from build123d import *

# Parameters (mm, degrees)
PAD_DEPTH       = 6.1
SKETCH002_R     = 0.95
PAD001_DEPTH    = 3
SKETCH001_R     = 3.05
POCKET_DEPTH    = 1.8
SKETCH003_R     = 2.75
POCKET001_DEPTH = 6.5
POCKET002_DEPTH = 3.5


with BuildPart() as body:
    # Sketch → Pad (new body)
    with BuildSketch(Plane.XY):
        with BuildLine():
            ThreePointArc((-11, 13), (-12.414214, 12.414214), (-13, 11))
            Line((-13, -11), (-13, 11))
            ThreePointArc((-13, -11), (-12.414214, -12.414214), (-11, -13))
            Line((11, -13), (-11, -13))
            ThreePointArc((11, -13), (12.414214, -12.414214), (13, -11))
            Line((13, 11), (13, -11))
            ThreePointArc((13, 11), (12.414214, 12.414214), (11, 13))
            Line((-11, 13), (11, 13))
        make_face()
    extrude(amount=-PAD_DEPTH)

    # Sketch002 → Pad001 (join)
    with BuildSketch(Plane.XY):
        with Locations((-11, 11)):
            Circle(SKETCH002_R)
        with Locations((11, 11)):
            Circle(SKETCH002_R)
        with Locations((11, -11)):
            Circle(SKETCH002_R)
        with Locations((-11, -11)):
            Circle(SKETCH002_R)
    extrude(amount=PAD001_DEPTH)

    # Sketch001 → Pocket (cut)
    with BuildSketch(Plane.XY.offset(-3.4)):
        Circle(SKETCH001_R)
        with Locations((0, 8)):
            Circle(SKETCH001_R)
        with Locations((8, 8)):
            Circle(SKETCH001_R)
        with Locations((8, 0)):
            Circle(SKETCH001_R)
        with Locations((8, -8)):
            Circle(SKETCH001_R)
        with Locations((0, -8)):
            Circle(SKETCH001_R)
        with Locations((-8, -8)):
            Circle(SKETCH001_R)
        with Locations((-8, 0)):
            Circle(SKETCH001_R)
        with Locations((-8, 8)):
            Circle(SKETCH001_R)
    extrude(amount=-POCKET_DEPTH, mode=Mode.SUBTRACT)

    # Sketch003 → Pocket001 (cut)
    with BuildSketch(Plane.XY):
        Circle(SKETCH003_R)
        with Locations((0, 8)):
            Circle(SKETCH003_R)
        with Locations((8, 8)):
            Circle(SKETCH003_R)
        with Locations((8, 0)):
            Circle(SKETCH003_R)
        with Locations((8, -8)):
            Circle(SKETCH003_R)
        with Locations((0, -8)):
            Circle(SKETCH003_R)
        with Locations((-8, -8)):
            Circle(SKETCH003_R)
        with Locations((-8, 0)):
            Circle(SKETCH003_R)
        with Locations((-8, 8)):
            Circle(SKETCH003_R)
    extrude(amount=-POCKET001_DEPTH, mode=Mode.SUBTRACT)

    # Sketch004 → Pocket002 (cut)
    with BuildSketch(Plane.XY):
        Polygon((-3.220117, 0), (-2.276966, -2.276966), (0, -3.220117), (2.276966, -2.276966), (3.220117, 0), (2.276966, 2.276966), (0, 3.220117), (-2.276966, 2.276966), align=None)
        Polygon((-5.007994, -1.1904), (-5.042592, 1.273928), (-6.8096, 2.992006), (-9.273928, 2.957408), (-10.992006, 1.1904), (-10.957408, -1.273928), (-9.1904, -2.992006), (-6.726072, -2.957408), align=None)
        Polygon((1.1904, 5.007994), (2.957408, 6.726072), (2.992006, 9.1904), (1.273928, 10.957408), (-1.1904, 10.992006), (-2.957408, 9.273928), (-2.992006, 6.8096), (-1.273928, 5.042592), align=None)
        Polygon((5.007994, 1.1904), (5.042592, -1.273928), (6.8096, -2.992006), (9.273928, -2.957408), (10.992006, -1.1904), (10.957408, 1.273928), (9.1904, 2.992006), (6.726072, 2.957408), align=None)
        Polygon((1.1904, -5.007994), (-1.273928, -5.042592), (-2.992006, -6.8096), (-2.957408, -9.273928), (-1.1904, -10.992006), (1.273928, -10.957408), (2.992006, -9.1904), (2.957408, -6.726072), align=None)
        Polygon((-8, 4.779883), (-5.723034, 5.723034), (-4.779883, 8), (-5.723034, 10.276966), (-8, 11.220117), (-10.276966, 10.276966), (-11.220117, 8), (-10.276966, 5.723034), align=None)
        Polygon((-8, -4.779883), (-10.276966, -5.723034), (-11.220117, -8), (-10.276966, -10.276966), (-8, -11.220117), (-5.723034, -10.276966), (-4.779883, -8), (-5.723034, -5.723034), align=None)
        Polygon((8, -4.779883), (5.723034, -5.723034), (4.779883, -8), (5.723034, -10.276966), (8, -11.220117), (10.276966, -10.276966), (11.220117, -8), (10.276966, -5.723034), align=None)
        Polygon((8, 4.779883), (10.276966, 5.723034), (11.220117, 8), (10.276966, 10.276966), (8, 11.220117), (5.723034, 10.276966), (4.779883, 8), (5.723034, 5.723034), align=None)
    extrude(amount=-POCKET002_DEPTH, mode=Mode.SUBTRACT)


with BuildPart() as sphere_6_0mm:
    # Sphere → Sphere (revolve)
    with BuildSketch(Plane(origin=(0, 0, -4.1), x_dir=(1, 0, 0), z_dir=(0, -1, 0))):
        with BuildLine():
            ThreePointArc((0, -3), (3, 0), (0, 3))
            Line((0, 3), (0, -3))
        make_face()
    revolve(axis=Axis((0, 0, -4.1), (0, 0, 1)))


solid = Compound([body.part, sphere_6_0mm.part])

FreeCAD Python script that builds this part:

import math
import FreeCAD as App
import Part
import Sketcher
Q = App.Units.Quantity


def add_polygon(sketch, points):
    """Adds a closed chain of lines whose ends are joined by coincident constraints."""
    first, n = sketch.GeometryCount, len(points)
    for a, b in zip(points, points[1:] + points[:1]):
        sketch.addGeometry(Part.LineSegment(App.Vector(*a, 0), App.Vector(*b, 0)), False)
    for i in range(n):
        sketch.addConstraint(Sketcher.Constraint("Coincident", first + i, 2, first + (i + 1) % n, 1))

doc = App.newDocument("Part")
params = doc.addObject("Spreadsheet::Sheet", "Params")
for row, (alias, value) in enumerate([
    ("sketch1_radius", "1.999999 mm"),
    ("sketch1_width", "22 mm"),
    ("pad1_length", "6.1 mm"),
    ("sketch2_diameter", "1.9 mm"),
    ("pad2_length", "3 mm"),
    ("sketch3_diameter", "6.1 mm"),
    ("pocket1_length", "1.8 mm"),
    ("sketch4_diameter", "5.5 mm"),
    ("pocket2_length", "6.5 mm"),
    ("pocket3_length", "3.5 mm"),
    ("sketch6_radius", "3 mm"),
    ("revolution_angle", "360 deg"),
], start=1):
    params.set(f"A{row}", alias)
    params.set(f"B{row}", "=" + value)
    params.setAlias(f"B{row}", alias)

body = doc.addObject("PartDesign::Body", "Body")

sketch1 = body.newObject("Sketcher::SketchObject", "Sketch")
sketch1.AttachmentSupport = (doc.getObject("XY_Plane"), [""])
sketch1.MapMode = "FlatFace"
sketch1.addGeometry(Part.ArcOfCircle(Part.Circle(App.Vector(-11.000001, 11.000001, 0), App.Vector(0, 0, 1), 1.999999), math.radians(89.999957), math.radians(180.000043)), False)
sketch1.addGeometry(Part.LineSegment(App.Vector(-13, 11, 0), App.Vector(-13, -11, 0)), False)
sketch1.addGeometry(Part.ArcOfCircle(Part.Circle(App.Vector(-11.000001, -11.000001, 0), App.Vector(0, 0, 1), 1.999999), math.radians(179.999957), math.radians(270.000043)), False)
sketch1.addGeometry(Part.LineSegment(App.Vector(-11, -13, 0), App.Vector(11, -13, 0)), False)
sketch1.addGeometry(Part.ArcOfCircle(Part.Circle(App.Vector(11.000001, -11.000001, 0), App.Vector(0, 0, 1), 1.999999), math.radians(-90.000043), math.radians(0.000043)), False)
sketch1.addGeometry(Part.LineSegment(App.Vector(13, -11, 0), App.Vector(13, 11, 0)), False)
sketch1.addGeometry(Part.ArcOfCircle(Part.Circle(App.Vector(11.000001, 11.000001, 0), App.Vector(0, 0, 1), 1.999999), math.radians(-0.000043), math.radians(90.000043)), False)
sketch1.addGeometry(Part.LineSegment(App.Vector(11, 13, 0), App.Vector(-11, 13, 0)), False)
sketch1.addConstraint(Sketcher.Constraint("Tangent", 0, 2, 1, 1))
sketch1.addConstraint(Sketcher.Constraint("Tangent", 1, 2, 2, 1))
sketch1.addConstraint(Sketcher.Constraint("Tangent", 2, 2, 3, 1))
sketch1.addConstraint(Sketcher.Constraint("Tangent", 3, 2, 4, 1))
sketch1.addConstraint(Sketcher.Constraint("Tangent", 4, 2, 5, 1))
sketch1.addConstraint(Sketcher.Constraint("Tangent", 5, 2, 6, 1))
sketch1.addConstraint(Sketcher.Constraint("Tangent", 6, 2, 7, 1))
sketch1.addConstraint(Sketcher.Constraint("Tangent", 7, 2, 0, 1))
sketch1.addConstraint(Sketcher.Constraint("Vertical", 1))
sketch1.addConstraint(Sketcher.Constraint("Horizontal", 3))
sketch1.addConstraint(Sketcher.Constraint("Vertical", 5))
sketch1.addConstraint(Sketcher.Constraint("Horizontal", 7))
sketch1.addConstraint(Sketcher.Constraint("Equal", 0, 2))
sketch1.addConstraint(Sketcher.Constraint("Equal", 2, 4))
sketch1.addConstraint(Sketcher.Constraint("Equal", 4, 6))
sketch1.addConstraint(Sketcher.Constraint("Symmetric", 0, 3, 4, 3, -1, 1))
sketch1.addConstraint(Sketcher.Constraint("Equal", 7, 1))
sketch1.addConstraint(Sketcher.Constraint("Radius", 0, 1.999999))
sketch1.addConstraint(Sketcher.Constraint("DistanceX", 3, 1, 3, 2, 22.0))
sketch1.setExpression("Constraints[17]", "Params.sketch1_radius")
sketch1.setExpression("Constraints[18]", "Params.sketch1_width")
pad1 = body.newObject("PartDesign::Pad", "Pad")
pad1.Profile = sketch1
pad1.setExpression("Length", "Params.pad1_length")
pad1.Reversed = True

sketch2 = body.newObject("Sketcher::SketchObject", "Sketch001")
sketch2.AttachmentSupport = (doc.getObject("XY_Plane"), [""])
sketch2.MapMode = "FlatFace"
sketch2.addGeometry(Part.Circle(App.Vector(-11, 11, 0), App.Vector(0, 0, 1), 0.95), False)
sketch2.addGeometry(Part.Circle(App.Vector(11, 11, 0), App.Vector(0, 0, 1), 0.95), False)
sketch2.addGeometry(Part.Circle(App.Vector(11, -11, 0), App.Vector(0, 0, 1), 0.95), False)
sketch2.addGeometry(Part.Circle(App.Vector(-11, -11, 0), App.Vector(0, 0, 1), 0.95), False)
sketch2.addConstraint(Sketcher.Constraint("Equal", 0, 1))
sketch2.addConstraint(Sketcher.Constraint("Equal", 1, 2))
sketch2.addConstraint(Sketcher.Constraint("Equal", 2, 3))
sketch2.addConstraint(Sketcher.Constraint("Symmetric", 0, 3, 2, 3, -1, 1))
sketch2.addConstraint(Sketcher.Constraint("Symmetric", 1, 3, 3, 3, -1, 1))
sketch2.addConstraint(Sketcher.Constraint("Symmetric", 0, 3, 1, 3, -2))
sketch2.addConstraint(Sketcher.Constraint("Diameter", 0, 1.9))
sketch2.addConstraint(Sketcher.Constraint("DistanceX", 0, 3, -1, 1, 11.0))
sketch2.addConstraint(Sketcher.Constraint("DistanceY", -1, 1, 0, 3, 11.0))
sketch2.setExpression("Constraints[6]", "Params.sketch2_diameter")
pad2 = body.newObject("PartDesign::Pad", "Pad001")
pad2.Profile = sketch2
pad2.setExpression("Length", "Params.pad2_length")

sketch3 = body.newObject("Sketcher::SketchObject", "Sketch002")
sketch3.AttachmentSupport = (doc.getObject("XY_Plane"), [""])
sketch3.MapMode = "FlatFace"
sketch3.AttachmentOffset = App.Placement(App.Vector(0, 0, -3.4), App.Rotation())
sketch3.addGeometry(Part.Circle(App.Vector(0, 0, 0), App.Vector(0, 0, 1), 3.05), False)
sketch3.addGeometry(Part.Circle(App.Vector(0, 8, 0), App.Vector(0, 0, 1), 3.05), False)
sketch3.addGeometry(Part.Circle(App.Vector(8, 8, 0), App.Vector(0, 0, 1), 3.05), False)
sketch3.addGeometry(Part.Circle(App.Vector(8, 0, 0), App.Vector(0, 0, 1), 3.05), False)
sketch3.addGeometry(Part.Circle(App.Vector(8, -8, 0), App.Vector(0, 0, 1), 3.05), False)
sketch3.addGeometry(Part.Circle(App.Vector(0, -8, 0), App.Vector(0, 0, 1), 3.05), False)
sketch3.addGeometry(Part.Circle(App.Vector(-8, -8, 0), App.Vector(0, 0, 1), 3.05), False)
sketch3.addGeometry(Part.Circle(App.Vector(-8, 0, 0), App.Vector(0, 0, 1), 3.05), False)
sketch3.addGeometry(Part.Circle(App.Vector(-8, 8, 0), App.Vector(0, 0, 1), 3.05), False)
sketch3.addConstraint(Sketcher.Constraint("Coincident", 0, 3, -1, 1))
sketch3.addConstraint(Sketcher.Constraint("Equal", 0, 1))
sketch3.addConstraint(Sketcher.Constraint("Equal", 1, 2))
sketch3.addConstraint(Sketcher.Constraint("Equal", 2, 3))
sketch3.addConstraint(Sketcher.Constraint("Equal", 3, 4))
sketch3.addConstraint(Sketcher.Constraint("Equal", 4, 5))
sketch3.addConstraint(Sketcher.Constraint("Equal", 5, 6))
sketch3.addConstraint(Sketcher.Constraint("Equal", 6, 7))
sketch3.addConstraint(Sketcher.Constraint("Equal", 7, 8))
sketch3.addConstraint(Sketcher.Constraint("Symmetric", 1, 3, 5, 3, -1, 1))
sketch3.addConstraint(Sketcher.Constraint("Symmetric", 2, 3, 6, 3, -1, 1))
sketch3.addConstraint(Sketcher.Constraint("Symmetric", 3, 3, 7, 3, -1, 1))
sketch3.addConstraint(Sketcher.Constraint("Symmetric", 4, 3, 8, 3, -1, 1))
sketch3.addConstraint(Sketcher.Constraint("Symmetric", 4, 3, 6, 3, -2))
sketch3.addConstraint(Sketcher.Constraint("PointOnObject", 1, 3, -2))
sketch3.addConstraint(Sketcher.Constraint("PointOnObject", 3, 3, -1))
sketch3.addConstraint(Sketcher.Constraint("Horizontal", 1, 3, 2, 3))
sketch3.addConstraint(Sketcher.Constraint("Vertical", 2, 3, 3, 3))
sketch3.addConstraint(Sketcher.Constraint("Diameter", 0, 6.1))
sketch3.addConstraint(Sketcher.Constraint("DistanceY", -1, 1, 1, 3, 8.0))
sketch3.addConstraint(Sketcher.Constraint("DistanceX", -1, 1, 2, 3, 8.0))
sketch3.setExpression("Constraints[18]", "Params.sketch3_diameter")
pocket1 = body.newObject("PartDesign::Pocket", "Pocket")
pocket1.Profile = sketch3
pocket1.setExpression("Length", "Params.pocket1_length")

sketch4 = body.newObject("Sketcher::SketchObject", "Sketch003")
sketch4.AttachmentSupport = (doc.getObject("XY_Plane"), [""])
sketch4.MapMode = "FlatFace"
sketch4.addGeometry(Part.Circle(App.Vector(0, 0, 0), App.Vector(0, 0, 1), 2.75), False)
sketch4.addGeometry(Part.Circle(App.Vector(0, 8, 0), App.Vector(0, 0, 1), 2.75), False)
sketch4.addGeometry(Part.Circle(App.Vector(8, 8, 0), App.Vector(0, 0, 1), 2.75), False)
sketch4.addGeometry(Part.Circle(App.Vector(8, 0, 0), App.Vector(0, 0, 1), 2.75), False)
sketch4.addGeometry(Part.Circle(App.Vector(8, -8, 0), App.Vector(0, 0, 1), 2.75), False)
sketch4.addGeometry(Part.Circle(App.Vector(0, -8, 0), App.Vector(0, 0, 1), 2.75), False)
sketch4.addGeometry(Part.Circle(App.Vector(-8, -8, 0), App.Vector(0, 0, 1), 2.75), False)
sketch4.addGeometry(Part.Circle(App.Vector(-8, 0, 0), App.Vector(0, 0, 1), 2.75), False)
sketch4.addGeometry(Part.Circle(App.Vector(-8, 8, 0), App.Vector(0, 0, 1), 2.75), False)
sketch4.addConstraint(Sketcher.Constraint("Coincident", 0, 3, -1, 1))
sketch4.addConstraint(Sketcher.Constraint("Equal", 0, 1))
sketch4.addConstraint(Sketcher.Constraint("Equal", 1, 2))
sketch4.addConstraint(Sketcher.Constraint("Equal", 2, 3))
sketch4.addConstraint(Sketcher.Constraint("Equal", 3, 4))
sketch4.addConstraint(Sketcher.Constraint("Equal", 4, 5))
sketch4.addConstraint(Sketcher.Constraint("Equal", 5, 6))
sketch4.addConstraint(Sketcher.Constraint("Equal", 6, 7))
sketch4.addConstraint(Sketcher.Constraint("Equal", 7, 8))
sketch4.addConstraint(Sketcher.Constraint("Symmetric", 1, 3, 5, 3, -1, 1))
sketch4.addConstraint(Sketcher.Constraint("Symmetric", 2, 3, 6, 3, -1, 1))
sketch4.addConstraint(Sketcher.Constraint("Symmetric", 3, 3, 7, 3, -1, 1))
sketch4.addConstraint(Sketcher.Constraint("Symmetric", 4, 3, 8, 3, -1, 1))
sketch4.addConstraint(Sketcher.Constraint("Symmetric", 4, 3, 6, 3, -2))
sketch4.addConstraint(Sketcher.Constraint("PointOnObject", 1, 3, -2))
sketch4.addConstraint(Sketcher.Constraint("PointOnObject", 3, 3, -1))
sketch4.addConstraint(Sketcher.Constraint("Horizontal", 1, 3, 2, 3))
sketch4.addConstraint(Sketcher.Constraint("Vertical", 2, 3, 3, 3))
sketch4.addConstraint(Sketcher.Constraint("Diameter", 0, 5.5))
sketch4.addConstraint(Sketcher.Constraint("DistanceY", -1, 1, 1, 3, 8.0))
sketch4.addConstraint(Sketcher.Constraint("DistanceX", -1, 1, 2, 3, 8.0))
sketch4.setExpression("Constraints[18]", "Params.sketch4_diameter")
pocket2 = body.newObject("PartDesign::Pocket", "Pocket001")
pocket2.Profile = sketch4
pocket2.setExpression("Length", "Params.pocket2_length")

sketch5 = body.newObject("Sketcher::SketchObject", "Sketch004")
sketch5.AttachmentSupport = (doc.getObject("XY_Plane"), [""])
sketch5.MapMode = "FlatFace"
add_polygon(sketch5, [(-3.220117, 0), (-2.276966, -2.276966), (0, -3.220117), (2.276966, -2.276966), (3.220117, 0), (2.276966, 2.276966), (0, 3.220117), (-2.276966, 2.276966)])
add_polygon(sketch5, [(-5.007994, -1.1904), (-5.042592, 1.273928), (-6.8096, 2.992006), (-9.273928, 2.957408), (-10.992006, 1.1904), (-10.957408, -1.273928), (-9.1904, -2.992006), (-6.726072, -2.957408)])
add_polygon(sketch5, [(1.1904, 5.007994), (2.957408, 6.726072), (2.992006, 9.1904), (1.273928, 10.957408), (-1.1904, 10.992006), (-2.957408, 9.273928), (-2.992006, 6.8096), (-1.273928, 5.042592)])
add_polygon(sketch5, [(5.007994, 1.1904), (5.042592, -1.273928), (6.8096, -2.992006), (9.273928, -2.957408), (10.992006, -1.1904), (10.957408, 1.273928), (9.1904, 2.992006), (6.726072, 2.957408)])
add_polygon(sketch5, [(1.1904, -5.007994), (-1.273928, -5.042592), (-2.992006, -6.8096), (-2.957408, -9.273928), (-1.1904, -10.992006), (1.273928, -10.957408), (2.992006, -9.1904), (2.957408, -6.726072)])
add_polygon(sketch5, [(-8, 4.779883), (-5.723034, 5.723034), (-4.779883, 8), (-5.723034, 10.276966), (-8, 11.220117), (-10.276966, 10.276966), (-11.220117, 8), (-10.276966, 5.723034)])
add_polygon(sketch5, [(-8, -4.779883), (-10.276966, -5.723034), (-11.220117, -8), (-10.276966, -10.276966), (-8, -11.220117), (-5.723034, -10.276966), (-4.779883, -8), (-5.723034, -5.723034)])
add_polygon(sketch5, [(8, -4.779883), (5.723034, -5.723034), (4.779883, -8), (5.723034, -10.276966), (8, -11.220117), (10.276966, -10.276966), (11.220117, -8), (10.276966, -5.723034)])
add_polygon(sketch5, [(8, 4.779883), (10.276966, 5.723034), (11.220117, 8), (10.276966, 10.276966), (8, 11.220117), (5.723034, 10.276966), (4.779883, 8), (5.723034, 5.723034)])
sketch5.addConstraint(Sketcher.Constraint("Symmetric", 0, 2, 4, 2, -1, 1))
sketch5.addConstraint(Sketcher.Constraint("Symmetric", 1, 2, 5, 2, -1, 1))
sketch5.addConstraint(Sketcher.Constraint("Symmetric", 2, 2, 6, 2, -1, 1))
sketch5.addConstraint(Sketcher.Constraint("Symmetric", 3, 2, 7, 2, -1, 1))
sketch5.addConstraint(Sketcher.Constraint("Symmetric", 8, 2, 24, 2, -1, 1))
sketch5.addConstraint(Sketcher.Constraint("Symmetric", 9, 2, 25, 2, -1, 1))
sketch5.addConstraint(Sketcher.Constraint("Symmetric", 10, 2, 26, 2, -1, 1))
sketch5.addConstraint(Sketcher.Constraint("Symmetric", 11, 2, 27, 2, -1, 1))
sketch5.addConstraint(Sketcher.Constraint("Symmetric", 12, 2, 28, 2, -1, 1))
sketch5.addConstraint(Sketcher.Constraint("Symmetric", 13, 2, 29, 2, -1, 1))
sketch5.addConstraint(Sketcher.Constraint("Symmetric", 14, 2, 30, 2, -1, 1))
sketch5.addConstraint(Sketcher.Constraint("Symmetric", 15, 2, 31, 2, -1, 1))
sketch5.addConstraint(Sketcher.Constraint("Symmetric", 40, 2, 56, 2, -1, 1))
sketch5.addConstraint(Sketcher.Constraint("Symmetric", 41, 2, 57, 2, -1, 1))
sketch5.addConstraint(Sketcher.Constraint("Symmetric", 42, 2, 58, 2, -1, 1))
sketch5.addConstraint(Sketcher.Constraint("Symmetric", 43, 2, 59, 2, -1, 1))
sketch5.addConstraint(Sketcher.Constraint("Symmetric", 44, 2, 60, 2, -1, 1))
sketch5.addConstraint(Sketcher.Constraint("Symmetric", 45, 2, 61, 2, -1, 1))
sketch5.addConstraint(Sketcher.Constraint("Symmetric", 46, 2, 62, 2, -1, 1))
sketch5.addConstraint(Sketcher.Constraint("Symmetric", 47, 2, 63, 2, -1, 1))
sketch5.addConstraint(Sketcher.Constraint("Symmetric", 48, 2, 64, 2, -1, 1))
sketch5.addConstraint(Sketcher.Constraint("Symmetric", 49, 2, 65, 2, -1, 1))
sketch5.addConstraint(Sketcher.Constraint("Symmetric", 50, 2, 66, 2, -1, 1))
sketch5.addConstraint(Sketcher.Constraint("Symmetric", 51, 2, 67, 2, -1, 1))
sketch5.addConstraint(Sketcher.Constraint("Symmetric", 52, 2, 68, 2, -1, 1))
sketch5.addConstraint(Sketcher.Constraint("Symmetric", 53, 2, 69, 2, -1, 1))
sketch5.addConstraint(Sketcher.Constraint("Symmetric", 54, 2, 70, 2, -1, 1))
sketch5.addConstraint(Sketcher.Constraint("Symmetric", 55, 2, 71, 2, -1, 1))
sketch5.addConstraint(Sketcher.Constraint("Symmetric", 0, 2, 2, 2, -2))
sketch5.addConstraint(Sketcher.Constraint("Symmetric", 54, 2, 56, 2, -2))
sketch5.addConstraint(Sketcher.Constraint("Symmetric", 53, 2, 57, 2, -2))
sketch5.addConstraint(Sketcher.Constraint("Symmetric", 52, 2, 58, 2, -2))
sketch5.addConstraint(Sketcher.Constraint("Symmetric", 51, 2, 59, 2, -2))
sketch5.addConstraint(Sketcher.Constraint("Symmetric", 50, 2, 60, 2, -2))
sketch5.addConstraint(Sketcher.Constraint("Symmetric", 49, 2, 61, 2, -2))
sketch5.addConstraint(Sketcher.Constraint("Symmetric", 48, 2, 62, 2, -2))
sketch5.addConstraint(Sketcher.Constraint("Symmetric", 55, 2, 63, 2, -2))
sketch5.addConstraint(Sketcher.Constraint("Symmetric", 22, 2, 32, 2, -1))
sketch5.addConstraint(Sketcher.Constraint("Symmetric", 21, 2, 33, 2, -1))
sketch5.addConstraint(Sketcher.Constraint("Symmetric", 20, 2, 34, 2, -1))
sketch5.addConstraint(Sketcher.Constraint("Symmetric", 19, 2, 35, 2, -1))
sketch5.addConstraint(Sketcher.Constraint("Symmetric", 18, 2, 36, 2, -1))
sketch5.addConstraint(Sketcher.Constraint("Symmetric", 17, 2, 37, 2, -1))
sketch5.addConstraint(Sketcher.Constraint("Symmetric", 16, 2, 38, 2, -1))
sketch5.addConstraint(Sketcher.Constraint("Symmetric", 23, 2, 39, 2, -1))
sketch5.addConstraint(Sketcher.Constraint("PointOnObject", 1, 2, -2))
sketch5.addConstraint(Sketcher.Constraint("PointOnObject", 3, 2, -1))
sketch5.addConstraint(Sketcher.Constraint("Perpendicular", 0, 2))
sketch5.addConstraint(Sketcher.Constraint("Perpendicular", 8, 10))
sketch5.addConstraint(Sketcher.Constraint("Perpendicular", 9, 11))
sketch5.addConstraint(Sketcher.Constraint("Perpendicular", 10, 12))
sketch5.addConstraint(Sketcher.Constraint("Perpendicular", 11, 13))
sketch5.addConstraint(Sketcher.Constraint("Perpendicular", 12, 14))
sketch5.addConstraint(Sketcher.Constraint("Perpendicular", 13, 15))
sketch5.addConstraint(Sketcher.Constraint("Perpendicular", 16, 18))
sketch5.addConstraint(Sketcher.Constraint("Perpendicular", 17, 19))
sketch5.addConstraint(Sketcher.Constraint("Perpendicular", 18, 20))
sketch5.addConstraint(Sketcher.Constraint("Perpendicular", 19, 21))
sketch5.addConstraint(Sketcher.Constraint("Perpendicular", 20, 22))
sketch5.addConstraint(Sketcher.Constraint("Perpendicular", 21, 23))
sketch5.addConstraint(Sketcher.Constraint("Parallel", 30, 32))
sketch5.addConstraint(Sketcher.Constraint("Parallel", 31, 33))
sketch5.addConstraint(Sketcher.Constraint("Parallel", 6, 40))
sketch5.addConstraint(Sketcher.Constraint("Parallel", 7, 41))
sketch5.addConstraint(Sketcher.Constraint("Perpendicular", 40, 42))
sketch5.addConstraint(Sketcher.Constraint("Perpendicular", 41, 43))
sketch5.addConstraint(Sketcher.Constraint("Perpendicular", 42, 44))
sketch5.addConstraint(Sketcher.Constraint("Perpendicular", 43, 45))
sketch5.addConstraint(Sketcher.Constraint("Perpendicular", 44, 46))
sketch5.addConstraint(Sketcher.Constraint("Perpendicular", 45, 47))
sketch5.addConstraint(Sketcher.Constraint("Horizontal", 12, 2, 24, 2))
sketch5.addConstraint(Sketcher.Constraint("Horizontal", 13, 2, 25, 2))
sketch5.addConstraint(Sketcher.Constraint("Horizontal", 14, 2, 26, 2))
sketch5.addConstraint(Sketcher.Constraint("Horizontal", 42, 2, 44, 2))
sketch5.addConstraint(Sketcher.Constraint("Horizontal", 41, 2, 45, 2))
sketch5.addConstraint(Sketcher.Constraint("Horizontal", 40, 2, 46, 2))
sketch5.addConstraint(Sketcher.Constraint("Vertical", 40, 2, 42, 2))
sketch5.addConstraint(Sketcher.Constraint("Equal", 0, 1))
sketch5.addConstraint(Sketcher.Constraint("Equal", 7, 8))
sketch5.addConstraint(Sketcher.Constraint("Equal", 8, 9))
sketch5.addConstraint(Sketcher.Constraint("Equal", 9, 10))
sketch5.addConstraint(Sketcher.Constraint("Equal", 10, 11))
sketch5.addConstraint(Sketcher.Constraint("Equal", 15, 16))
sketch5.addConstraint(Sketcher.Constraint("Equal", 16, 17))
sketch5.addConstraint(Sketcher.Constraint("Equal", 17, 18))
sketch5.addConstraint(Sketcher.Constraint("Equal", 18, 19))
sketch5.addConstraint(Sketcher.Constraint("Equal", 19, 20))
sketch5.addConstraint(Sketcher.Constraint("Equal", 20, 21))
sketch5.addConstraint(Sketcher.Constraint("Equal", 39, 40))
sketch5.addConstraint(Sketcher.Constraint("Equal", 40, 41))
sketch5.addConstraint(Sketcher.Constraint("DistanceY", -1, 1, 41, 2, 8.0))
sketch5.addConstraint(Sketcher.Constraint("DistanceX", 43, 2, -1, 1, 8.0))
sketch5.addConstraint(Sketcher.Constraint("Angle", 0, Q("-67.499983 deg")))
sketch5.addConstraint(Sketcher.Constraint("DistanceX", 9, 2, -1, 1, 6.8096))
sketch5.addConstraint(Sketcher.Constraint("DistanceY", -1, 1, 11, 2, 1.1904))
sketch5.addConstraint(Sketcher.Constraint("DistanceY", -1, 1, 17, 2, 9.1904))
sketch5.addConstraint(Sketcher.Constraint("DistanceX", 19, 2, -1, 1, 1.1904))
sketch5.addConstraint(Sketcher.Constraint("Distance", 0, 2.464571))
sketch5.addConstraint(Sketcher.Constraint("DistanceY", -1, 1, 10, 2, 2.957408))
pocket3 = body.newObject("PartDesign::Pocket", "Pocket002")
pocket3.Profile = sketch5
pocket3.setExpression("Length", "Params.pocket3_length")
body2 = doc.addObject("PartDesign::Body", "Body001")

sketch6 = body2.newObject("Sketcher::SketchObject", "Sketch005")
sketch6.AttachmentSupport = (doc.getObject("XZ_Plane001"), [""])
sketch6.MapMode = "FlatFace"
sketch6.addGeometry(Part.ArcOfCircle(Part.Circle(App.Vector(0, -4.1, 0), App.Vector(0, 0, 1), 3), math.radians(-90), math.radians(90)), False)
sketch6.addGeometry(Part.LineSegment(App.Vector(0, -1.1, 0), App.Vector(0, -7.1, 0)), False)
sketch6.addConstraint(Sketcher.Constraint("Coincident", 0, 1, 1, 2))
sketch6.addConstraint(Sketcher.Constraint("Coincident", 1, 1, 0, 2))
sketch6.addConstraint(Sketcher.Constraint("Vertical", 1))
sketch6.addConstraint(Sketcher.Constraint("PointOnObject", 0, 3, -2))
sketch6.addConstraint(Sketcher.Constraint("PointOnObject", 0, 1, -2))
sketch6.addConstraint(Sketcher.Constraint("Radius", 0, 3.0))
sketch6.addConstraint(Sketcher.Constraint("DistanceY", 0, 3, -1, 1, 4.1))
sketch6.setExpression("Constraints[5]", "Params.sketch6_radius")
revolution = body2.newObject("PartDesign::Revolution", "Revolution")
revolution.Profile = sketch6
revolution.ReferenceAxis = (sketch6, ["V_Axis"])
revolution.setExpression("Angle", "Params.revolution_angle")

doc.recompute()
